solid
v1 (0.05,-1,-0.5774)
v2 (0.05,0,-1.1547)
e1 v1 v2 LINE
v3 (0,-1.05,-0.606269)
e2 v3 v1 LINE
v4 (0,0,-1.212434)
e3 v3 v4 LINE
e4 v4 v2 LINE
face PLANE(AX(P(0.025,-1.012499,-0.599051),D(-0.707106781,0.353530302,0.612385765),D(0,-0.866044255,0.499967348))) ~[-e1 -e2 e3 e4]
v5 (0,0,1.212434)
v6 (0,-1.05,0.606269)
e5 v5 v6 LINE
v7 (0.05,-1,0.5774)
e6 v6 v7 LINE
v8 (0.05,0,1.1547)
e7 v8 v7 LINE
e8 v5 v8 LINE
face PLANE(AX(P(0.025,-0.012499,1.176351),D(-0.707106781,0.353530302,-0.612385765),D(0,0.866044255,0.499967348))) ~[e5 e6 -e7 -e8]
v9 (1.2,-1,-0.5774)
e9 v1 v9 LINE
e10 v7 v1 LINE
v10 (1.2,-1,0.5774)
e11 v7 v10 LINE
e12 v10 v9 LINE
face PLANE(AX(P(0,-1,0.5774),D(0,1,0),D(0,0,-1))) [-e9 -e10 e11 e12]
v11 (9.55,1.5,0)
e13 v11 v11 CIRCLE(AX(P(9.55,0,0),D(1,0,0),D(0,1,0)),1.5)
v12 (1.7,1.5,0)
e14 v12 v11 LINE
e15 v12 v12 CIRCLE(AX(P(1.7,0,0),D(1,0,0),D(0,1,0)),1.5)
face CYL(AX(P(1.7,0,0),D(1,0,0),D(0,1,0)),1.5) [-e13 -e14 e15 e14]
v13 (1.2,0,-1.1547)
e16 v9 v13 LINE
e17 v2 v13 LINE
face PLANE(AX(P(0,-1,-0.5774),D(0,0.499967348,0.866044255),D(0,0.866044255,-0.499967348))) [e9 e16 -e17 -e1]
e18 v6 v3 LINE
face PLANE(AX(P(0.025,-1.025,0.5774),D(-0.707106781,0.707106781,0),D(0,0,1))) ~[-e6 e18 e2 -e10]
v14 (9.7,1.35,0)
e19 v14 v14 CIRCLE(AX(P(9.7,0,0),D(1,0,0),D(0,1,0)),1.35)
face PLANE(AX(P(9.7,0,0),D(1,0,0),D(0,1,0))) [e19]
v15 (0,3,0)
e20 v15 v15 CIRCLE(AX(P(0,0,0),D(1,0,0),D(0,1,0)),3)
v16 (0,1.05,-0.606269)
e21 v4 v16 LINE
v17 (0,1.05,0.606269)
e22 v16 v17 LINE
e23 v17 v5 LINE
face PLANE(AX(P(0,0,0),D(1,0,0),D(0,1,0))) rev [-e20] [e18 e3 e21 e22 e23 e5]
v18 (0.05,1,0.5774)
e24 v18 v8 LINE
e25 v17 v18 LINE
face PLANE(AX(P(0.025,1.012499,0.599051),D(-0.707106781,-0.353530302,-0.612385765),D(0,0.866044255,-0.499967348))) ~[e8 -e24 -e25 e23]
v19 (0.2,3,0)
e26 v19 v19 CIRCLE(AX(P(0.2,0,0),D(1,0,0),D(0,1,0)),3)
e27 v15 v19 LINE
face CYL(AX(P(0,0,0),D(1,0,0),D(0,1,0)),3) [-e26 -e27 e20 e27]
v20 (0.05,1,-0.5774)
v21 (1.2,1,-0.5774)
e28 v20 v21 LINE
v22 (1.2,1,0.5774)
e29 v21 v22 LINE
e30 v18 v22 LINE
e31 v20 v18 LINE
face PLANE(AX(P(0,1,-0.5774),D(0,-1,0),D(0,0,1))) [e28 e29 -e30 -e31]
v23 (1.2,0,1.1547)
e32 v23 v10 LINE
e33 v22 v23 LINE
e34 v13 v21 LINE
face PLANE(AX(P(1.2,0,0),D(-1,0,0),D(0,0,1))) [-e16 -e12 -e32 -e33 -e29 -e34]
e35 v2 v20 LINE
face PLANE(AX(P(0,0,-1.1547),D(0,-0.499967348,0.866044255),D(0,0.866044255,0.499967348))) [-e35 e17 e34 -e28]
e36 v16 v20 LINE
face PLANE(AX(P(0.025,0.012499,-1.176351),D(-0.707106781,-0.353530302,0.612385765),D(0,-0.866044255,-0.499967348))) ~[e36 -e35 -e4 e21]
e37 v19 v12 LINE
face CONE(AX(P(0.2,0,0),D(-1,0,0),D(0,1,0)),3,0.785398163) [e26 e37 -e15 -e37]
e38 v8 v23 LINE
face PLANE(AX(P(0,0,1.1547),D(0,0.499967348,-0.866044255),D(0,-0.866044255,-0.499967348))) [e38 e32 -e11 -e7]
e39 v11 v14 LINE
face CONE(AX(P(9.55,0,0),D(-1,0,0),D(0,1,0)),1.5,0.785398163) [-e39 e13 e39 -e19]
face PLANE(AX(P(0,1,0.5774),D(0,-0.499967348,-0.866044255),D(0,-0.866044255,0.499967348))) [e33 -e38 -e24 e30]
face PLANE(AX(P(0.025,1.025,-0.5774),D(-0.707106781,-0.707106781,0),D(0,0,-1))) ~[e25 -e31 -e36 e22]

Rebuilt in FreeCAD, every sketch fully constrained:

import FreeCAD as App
import Part
import Sketcher

V = App.Vector


def edges_at(feature, points):
    """Names of the edges that pass closest to the given points."""
    edges = feature.Shape.Edges
    near = lambda p: min(range(len(edges)), key=lambda i: edges[i].distToShape(Part.Vertex(*p))[0])
    return sorted({f"Edge{near(p) + 1}" for p in points})


def add_polygon(sketch, points):
    """Adds a closed chain of lines whose ends are joined by coincident constraints."""
    first, n = sketch.GeometryCount, len(points)
    for a, b in zip(points, points[1:] + points[:1]):
        sketch.addGeometry(Part.LineSegment(App.Vector(*a, 0), App.Vector(*b, 0)), False)
    for i in range(n):
        sketch.addConstraint(Sketcher.Constraint("Coincident", first + i, 2, first + (i + 1) % n, 1))

doc = App.newDocument("Part")
body = doc.addObject("PartDesign::Body", "Body")

# Sketch on XY plane
sketch1 = body.newObject("Sketcher::SketchObject", "Sketch")
sketch1.AttachmentSupport = (doc.getObject("XY_Plane"), [""])
sketch1.MapMode = "FlatFace"
add_polygon(sketch1, [(0, 3), (0, 0), (9.7, 0), (9.7, 1.5), (1.7, 1.5), (0.2, 3)])  # lines 0-5
sketch1.addConstraint([
    Sketcher.Constraint("Vertical", 0),
    Sketcher.Constraint("Horizontal", 1),
    Sketcher.Constraint("Vertical", 2),
    Sketcher.Constraint("Horizontal", 3),
    Sketcher.Constraint("Horizontal", 5),
    Sketcher.Constraint("Coincident", 0, 2, -1, 1),
    Sketcher.Constraint("DistanceX", 3, 2, 3, 1, 8.0),
    Sketcher.Constraint("DistanceY", 0, 2, 0, 1, 3.0),
    Sketcher.Constraint("DistanceY", 2, 1, 2, 2, 1.5),
    Sketcher.Constraint("DistanceX", -1, 1, 3, 2, 1.7),
    Sketcher.Constraint("DistanceX", 4, 2, 3, 2, 1.5),
])
revolution = body.newObject("PartDesign::Revolution", "Revolution")
revolution.Profile = sketch1
revolution.ReferenceAxis = (sketch1, ["H_Axis"])
revolution.Angle = 360

# Sketch on YZ plane
sketch2 = body.newObject("Sketcher::SketchObject", "Sketch001")
sketch2.AttachmentSupport = (doc.getObject("YZ_Plane"), [""])
sketch2.MapMode = "FlatFace"
add_polygon(sketch2, [(0, 1.2), (1, 0.6), (1, -0.6), (0, -1.2), (-1, -0.6), (-1, 0.6)])  # lines 0-5
sketch2.addConstraint([
    Sketcher.Constraint("Vertical", 1),
    Sketcher.Constraint("Vertical", 4),
    Sketcher.Constraint("Symmetric", 0, 2, 3, 2, -1, 1),
    Sketcher.Constraint("Symmetric", 2, 2, 5, 2, -1, 1),
    Sketcher.Constraint("PointOnObject", 2, 2, -2),
    Sketcher.Constraint("Parallel", 2, 5),
    Sketcher.Constraint("Horizontal", 1, 2, 3, 2),
    Sketcher.Constraint("DistanceX", 3, 2, 1, 2, 2.0),
    Sketcher.Constraint("DistanceY", 1, 2, 1, 1, 1.1548),
    Sketcher.Constraint("DistanceY", 2, 2, 0, 2, 1.732),
])
pocket1 = body.newObject("PartDesign::Pocket", "Pocket")
pocket1.Profile = sketch2
pocket1.Length = 1.2
pocket1.Reversed = True
doc.recompute()

chamfer = body.newObject("PartDesign::Chamfer", "Chamfer")
chamfer.Base = (pocket1, edges_at(pocket1, [
    (0, -0.5, -0.866),
    (0, 0.5, -0.866),
    (0, 1, 0),
    (0, 0.5, 0.866),
    (0, -1, 0),
    (0, -0.5, 0.866),
]))
chamfer.Size = 0.05
doc.recompute()

chamfer2 = body.newObject("PartDesign::Chamfer", "Chamfer001")
chamfer2.Base = (chamfer, edges_at(chamfer, [(9.7, -1.5, 0)]))
chamfer2.Size = 0.15

doc.recompute()
